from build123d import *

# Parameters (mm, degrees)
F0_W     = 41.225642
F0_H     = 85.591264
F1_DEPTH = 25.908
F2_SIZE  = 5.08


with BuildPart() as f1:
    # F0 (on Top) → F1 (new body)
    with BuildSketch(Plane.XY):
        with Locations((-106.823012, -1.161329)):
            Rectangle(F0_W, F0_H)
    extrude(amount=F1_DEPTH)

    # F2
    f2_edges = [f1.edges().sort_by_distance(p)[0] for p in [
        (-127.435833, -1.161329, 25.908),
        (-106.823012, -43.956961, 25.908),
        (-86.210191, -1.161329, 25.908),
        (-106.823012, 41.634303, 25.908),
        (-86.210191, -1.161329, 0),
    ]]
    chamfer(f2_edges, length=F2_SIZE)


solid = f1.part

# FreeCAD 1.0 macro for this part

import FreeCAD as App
import Part
import Sketcher
Q = App.Units.Quantity


def edges_at(feature, points):
    """Names of the edges that pass closest to the given points."""
    edges = feature.Shape.Edges
    near = lambda p: min(range(len(edges)), key=lambda i: edges[i].distToShape(Part.Vertex(*p))[0])
    return sorted({f"Edge{near(p) + 1}" for p in points})

doc = App.newDocument("Part")
params = doc.addObject("Spreadsheet::Sheet", "Params")
for row, (alias, value) in enumerate([
    ("pad1_length", "1.02 in"),
    ("chamfer_size", "0.2 in"),
], start=1):
    params.set(f"A{row}", alias)
    params.set(f"B{row}", "=" + value)
    params.setAlias(f"B{row}", alias)

body = doc.addObject("PartDesign::Body", "Body")

sketch1 = body.newObject("Sketcher::SketchObject", "Sketch")
sketch1.AttachmentSupport = (doc.getObject("XY_Plane"), [""])
sketch1.MapMode = "FlatFace"
sketch1.addGeometry([
    Part.LineSegment(App.Vector(-127, 42, 0), App.Vector(-127, -44, 0)),
    Part.LineSegment(App.Vector(-127, -44, 0), App.Vector(-86, -44, 0)),
    Part.LineSegment(App.Vector(-86, -44, 0), App.Vector(-86, 42, 0)),
    Part.LineSegment(App.Vector(-86, 42, 0), App.Vector(-127, 42, 0)),
], False)
sketch1.addConstraint([
    Sketcher.Constraint("Coincident", 0, 2, 1, 1),
    Sketcher.Constraint("Coincident", 1, 2, 2, 1),
    Sketcher.Constraint("Coincident", 2, 2, 3, 1),
    Sketcher.Constraint("Coincident", 3, 2, 0, 1),
    Sketcher.Constraint("Vertical", 0),
    Sketcher.Constraint("Horizontal", 1),
    Sketcher.Constraint("Vertical", 2),
    Sketcher.Constraint("Horizontal", 3),
    Sketcher.Constraint("DistanceX", 1, 1, 1, 2, Q("41.225642 mm")),
    Sketcher.Constraint("DistanceY", 0, 2, 0, 1, Q("85.591264 mm")),
    Sketcher.Constraint("DistanceY", 0, 2, -1, 1, Q("43.956961 mm")),
    Sketcher.Constraint("DistanceX", 1, 2, -1, 1, Q("86.210191 mm")),
])
pad1 = body.newObject("PartDesign::Pad", "Pad")
pad1.Profile = sketch1
pad1.setExpression("Length", "Params.pad1_length")
doc.recompute()

chamfer = body.newObject("PartDesign::Chamfer", "Chamfer")
chamfer.Base = (pad1, edges_at(pad1, [
    (-127.436, -1.161, 25.908),
    (-106.823, -43.957, 25.908),
    (-86.21, -1.161, 25.908),
    (-106.823, 41.634, 25.908),
    (-86.21, -1.161, 0),
]))
chamfer.setExpression("Size", "Params.chamfer_size")

doc.recompute()
